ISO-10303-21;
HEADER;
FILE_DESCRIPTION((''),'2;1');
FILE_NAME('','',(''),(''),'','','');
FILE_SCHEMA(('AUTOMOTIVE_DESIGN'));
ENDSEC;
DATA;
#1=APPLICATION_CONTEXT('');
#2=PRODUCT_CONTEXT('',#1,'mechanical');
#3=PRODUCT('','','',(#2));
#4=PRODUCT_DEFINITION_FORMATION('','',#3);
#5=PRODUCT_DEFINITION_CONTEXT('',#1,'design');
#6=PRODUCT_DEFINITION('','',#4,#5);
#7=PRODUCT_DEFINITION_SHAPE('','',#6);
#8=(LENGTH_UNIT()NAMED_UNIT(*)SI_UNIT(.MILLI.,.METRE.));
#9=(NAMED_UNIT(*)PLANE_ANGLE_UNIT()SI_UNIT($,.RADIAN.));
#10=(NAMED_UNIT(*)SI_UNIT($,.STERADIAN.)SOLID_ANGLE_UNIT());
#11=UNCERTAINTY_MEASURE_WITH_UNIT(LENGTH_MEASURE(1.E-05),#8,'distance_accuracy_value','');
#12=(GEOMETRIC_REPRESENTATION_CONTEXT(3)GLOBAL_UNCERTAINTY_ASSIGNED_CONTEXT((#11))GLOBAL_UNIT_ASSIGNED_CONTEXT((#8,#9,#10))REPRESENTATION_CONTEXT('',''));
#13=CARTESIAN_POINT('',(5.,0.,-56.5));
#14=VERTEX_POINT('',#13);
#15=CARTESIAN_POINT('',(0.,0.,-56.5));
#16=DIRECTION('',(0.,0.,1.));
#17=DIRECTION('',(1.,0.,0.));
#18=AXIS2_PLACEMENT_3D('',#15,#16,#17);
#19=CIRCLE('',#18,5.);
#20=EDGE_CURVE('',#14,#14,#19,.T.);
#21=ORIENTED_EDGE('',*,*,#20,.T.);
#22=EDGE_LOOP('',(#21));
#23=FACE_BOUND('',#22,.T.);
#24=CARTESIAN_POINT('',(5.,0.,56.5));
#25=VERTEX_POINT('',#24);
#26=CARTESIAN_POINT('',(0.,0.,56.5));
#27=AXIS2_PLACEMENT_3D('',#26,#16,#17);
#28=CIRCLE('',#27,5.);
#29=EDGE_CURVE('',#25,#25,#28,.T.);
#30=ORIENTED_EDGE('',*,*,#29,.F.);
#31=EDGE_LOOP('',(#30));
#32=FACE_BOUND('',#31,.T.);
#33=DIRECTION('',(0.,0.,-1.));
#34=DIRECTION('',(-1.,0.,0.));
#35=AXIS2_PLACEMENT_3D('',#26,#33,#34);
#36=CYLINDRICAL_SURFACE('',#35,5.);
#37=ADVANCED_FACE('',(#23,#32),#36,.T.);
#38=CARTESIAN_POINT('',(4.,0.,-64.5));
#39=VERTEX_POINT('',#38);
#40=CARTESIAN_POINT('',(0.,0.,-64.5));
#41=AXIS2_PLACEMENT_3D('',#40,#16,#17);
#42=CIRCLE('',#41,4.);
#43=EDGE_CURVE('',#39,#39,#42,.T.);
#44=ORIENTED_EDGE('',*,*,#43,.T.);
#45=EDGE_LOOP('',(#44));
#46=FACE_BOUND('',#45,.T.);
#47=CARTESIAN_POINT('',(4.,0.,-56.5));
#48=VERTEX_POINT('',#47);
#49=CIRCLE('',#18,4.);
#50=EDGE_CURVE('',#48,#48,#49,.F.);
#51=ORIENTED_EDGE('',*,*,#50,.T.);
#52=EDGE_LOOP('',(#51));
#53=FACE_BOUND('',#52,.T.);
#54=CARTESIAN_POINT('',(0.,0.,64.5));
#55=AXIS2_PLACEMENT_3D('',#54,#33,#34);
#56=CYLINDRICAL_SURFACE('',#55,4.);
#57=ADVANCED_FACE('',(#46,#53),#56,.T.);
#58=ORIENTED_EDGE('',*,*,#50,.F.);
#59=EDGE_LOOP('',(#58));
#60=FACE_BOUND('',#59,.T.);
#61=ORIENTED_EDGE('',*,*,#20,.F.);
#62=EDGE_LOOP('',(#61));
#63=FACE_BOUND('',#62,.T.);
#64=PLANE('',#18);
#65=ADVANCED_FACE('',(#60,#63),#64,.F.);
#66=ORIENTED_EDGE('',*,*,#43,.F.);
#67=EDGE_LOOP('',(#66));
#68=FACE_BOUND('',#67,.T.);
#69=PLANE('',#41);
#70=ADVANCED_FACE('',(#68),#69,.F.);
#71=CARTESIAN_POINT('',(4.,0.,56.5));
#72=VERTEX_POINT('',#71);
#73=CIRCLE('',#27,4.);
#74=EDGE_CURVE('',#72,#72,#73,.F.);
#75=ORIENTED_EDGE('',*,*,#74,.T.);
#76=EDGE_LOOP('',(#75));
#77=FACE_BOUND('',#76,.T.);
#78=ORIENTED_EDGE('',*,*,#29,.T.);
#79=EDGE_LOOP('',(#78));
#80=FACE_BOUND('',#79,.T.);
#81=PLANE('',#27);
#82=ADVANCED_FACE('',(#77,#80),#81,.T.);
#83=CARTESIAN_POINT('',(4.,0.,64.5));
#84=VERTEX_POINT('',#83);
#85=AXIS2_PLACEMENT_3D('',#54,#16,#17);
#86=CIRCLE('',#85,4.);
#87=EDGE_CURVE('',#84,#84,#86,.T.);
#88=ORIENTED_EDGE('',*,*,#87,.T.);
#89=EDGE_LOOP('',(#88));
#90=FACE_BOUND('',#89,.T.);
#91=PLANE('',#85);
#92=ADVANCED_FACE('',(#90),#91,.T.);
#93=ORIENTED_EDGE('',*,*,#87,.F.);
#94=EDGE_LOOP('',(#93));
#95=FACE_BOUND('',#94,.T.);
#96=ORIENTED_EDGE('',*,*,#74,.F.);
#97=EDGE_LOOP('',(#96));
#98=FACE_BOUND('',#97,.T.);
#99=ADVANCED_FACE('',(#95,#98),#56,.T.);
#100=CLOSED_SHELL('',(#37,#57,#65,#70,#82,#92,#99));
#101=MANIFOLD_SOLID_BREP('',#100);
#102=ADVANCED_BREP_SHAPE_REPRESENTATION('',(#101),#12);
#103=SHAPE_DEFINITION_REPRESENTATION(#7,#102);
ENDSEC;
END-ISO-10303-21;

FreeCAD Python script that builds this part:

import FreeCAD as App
import Part
import Sketcher
Q = App.Units.Quantity

doc = App.newDocument("Part")
body = doc.addObject("PartDesign::Body", "Body")

# Sketch on XY plane
sketch1 = doc.addObject("Sketcher::SketchObject", "Sketch")
body.addObject(sketch1)
sketch1.AttachmentSupport = (doc.XY_Plane, [""])
sketch1.MapMode = "FlatFace"
sketch1.addGeometry(Part.Circle(App.Vector(0, 0, 0), App.Vector(0, 0, 1), 5), False)
sketch1.addConstraint([
    Sketcher.Constraint("Coincident", 0, 3, -1, 1),
    Sketcher.Constraint("Diameter", 0, Q("10 mm")),
])
pad1 = doc.addObject("PartDesign::Pad", "Pad")
body.addObject(pad1)
pad1.Profile = sketch1
pad1.Length = 113
pad1.Midplane = True

# Sketch on XY plane
sketch2 = doc.addObject("Sketcher::SketchObject", "Sketch001")
body.addObject(sketch2)
sketch2.AttachmentSupport = (doc.XY_Plane, [""])
sketch2.MapMode = "FlatFace"
sketch2.addGeometry(Part.Circle(App.Vector(0, 0, 0), App.Vector(0, 0, 1), 4), False)
sketch2.addConstraint([
    Sketcher.Constraint("Coincident", 0, 3, -1, 1),
    Sketcher.Constraint("Diameter", 0, Q("8 mm")),
])
pad2 = doc.addObject("PartDesign::Pad", "Pad001")
body.addObject(pad2)
pad2.Profile = sketch2
pad2.Length = 129
pad2.Midplane = True

doc.recompute()
